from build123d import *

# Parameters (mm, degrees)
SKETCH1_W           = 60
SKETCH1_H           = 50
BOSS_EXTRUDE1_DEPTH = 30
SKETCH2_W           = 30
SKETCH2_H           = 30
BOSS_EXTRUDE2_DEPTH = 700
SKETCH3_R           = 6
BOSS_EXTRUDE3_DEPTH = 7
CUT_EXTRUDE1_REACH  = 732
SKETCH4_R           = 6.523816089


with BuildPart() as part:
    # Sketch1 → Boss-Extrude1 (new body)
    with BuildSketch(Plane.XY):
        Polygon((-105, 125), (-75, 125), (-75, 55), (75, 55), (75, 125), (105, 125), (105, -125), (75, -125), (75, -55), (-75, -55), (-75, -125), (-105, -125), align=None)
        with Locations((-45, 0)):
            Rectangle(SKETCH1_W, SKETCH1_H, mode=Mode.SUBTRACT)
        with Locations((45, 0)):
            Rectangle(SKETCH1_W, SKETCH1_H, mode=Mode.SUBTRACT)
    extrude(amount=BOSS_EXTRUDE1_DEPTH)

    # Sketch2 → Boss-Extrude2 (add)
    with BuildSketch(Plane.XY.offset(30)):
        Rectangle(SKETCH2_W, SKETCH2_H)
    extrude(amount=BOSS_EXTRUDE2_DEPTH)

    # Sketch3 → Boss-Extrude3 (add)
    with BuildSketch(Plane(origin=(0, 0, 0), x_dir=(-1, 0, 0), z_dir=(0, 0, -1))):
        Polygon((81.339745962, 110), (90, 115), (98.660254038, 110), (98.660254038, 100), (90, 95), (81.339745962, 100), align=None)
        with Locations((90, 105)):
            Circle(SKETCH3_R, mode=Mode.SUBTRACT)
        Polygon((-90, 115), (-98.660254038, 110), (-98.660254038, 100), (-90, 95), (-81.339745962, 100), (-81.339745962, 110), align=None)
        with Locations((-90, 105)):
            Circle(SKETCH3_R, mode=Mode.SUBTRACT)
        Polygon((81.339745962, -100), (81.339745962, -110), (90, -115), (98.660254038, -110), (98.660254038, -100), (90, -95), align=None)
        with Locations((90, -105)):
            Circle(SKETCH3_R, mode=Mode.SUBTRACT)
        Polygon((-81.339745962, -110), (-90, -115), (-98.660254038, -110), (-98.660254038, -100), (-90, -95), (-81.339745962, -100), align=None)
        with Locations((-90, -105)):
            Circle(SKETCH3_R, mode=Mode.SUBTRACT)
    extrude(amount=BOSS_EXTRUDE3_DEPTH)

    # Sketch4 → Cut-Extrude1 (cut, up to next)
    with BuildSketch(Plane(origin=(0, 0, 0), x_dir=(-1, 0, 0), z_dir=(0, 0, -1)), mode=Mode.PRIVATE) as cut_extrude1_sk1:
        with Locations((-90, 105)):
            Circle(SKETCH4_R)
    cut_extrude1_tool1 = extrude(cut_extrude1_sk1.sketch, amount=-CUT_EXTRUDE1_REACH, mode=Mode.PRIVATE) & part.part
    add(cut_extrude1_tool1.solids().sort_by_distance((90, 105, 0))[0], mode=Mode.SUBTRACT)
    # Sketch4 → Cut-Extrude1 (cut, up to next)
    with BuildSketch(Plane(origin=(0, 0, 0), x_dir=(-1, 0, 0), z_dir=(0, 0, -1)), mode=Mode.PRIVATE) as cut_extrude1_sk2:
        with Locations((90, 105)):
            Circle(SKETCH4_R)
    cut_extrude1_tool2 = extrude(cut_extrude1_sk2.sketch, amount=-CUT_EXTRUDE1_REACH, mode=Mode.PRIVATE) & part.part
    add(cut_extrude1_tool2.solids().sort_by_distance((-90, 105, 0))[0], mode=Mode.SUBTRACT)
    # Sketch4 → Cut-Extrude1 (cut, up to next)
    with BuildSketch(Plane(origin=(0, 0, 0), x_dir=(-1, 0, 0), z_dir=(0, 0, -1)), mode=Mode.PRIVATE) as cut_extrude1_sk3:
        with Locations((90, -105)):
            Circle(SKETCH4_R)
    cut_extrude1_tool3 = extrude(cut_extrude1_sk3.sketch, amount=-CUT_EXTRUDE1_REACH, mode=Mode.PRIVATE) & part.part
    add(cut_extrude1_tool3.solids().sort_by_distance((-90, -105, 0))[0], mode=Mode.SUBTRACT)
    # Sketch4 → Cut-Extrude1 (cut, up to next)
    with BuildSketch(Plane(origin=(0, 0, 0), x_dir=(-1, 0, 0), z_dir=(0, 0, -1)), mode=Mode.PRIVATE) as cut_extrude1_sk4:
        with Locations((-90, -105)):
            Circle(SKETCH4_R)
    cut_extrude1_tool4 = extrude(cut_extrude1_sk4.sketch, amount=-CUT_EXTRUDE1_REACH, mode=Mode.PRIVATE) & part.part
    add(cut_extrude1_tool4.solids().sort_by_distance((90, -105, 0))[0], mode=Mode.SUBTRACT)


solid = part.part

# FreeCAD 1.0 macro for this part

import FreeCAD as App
import Part
import Sketcher
from FreeCAD import Vector
Q = App.Units.Quantity

doc = App.newDocument("Part")
body = doc.addObject("PartDesign::Body", "Body")

sketch1 = body.newObject("Sketcher::SketchObject", "Sketch")
sketch1.AttachmentSupport = (doc.getObject("XY_Plane"), [""])
sketch1.MapMode = "FlatFace"
sketch1.addGeometry(Part.LineSegment(Vector(-75, 125, 0), Vector(-105, 125, 0)), False)
sketch1.addGeometry(Part.LineSegment(Vector(-105, 125, 0), Vector(-105, -125, 0)), False)
sketch1.addGeometry(Part.LineSegment(Vector(-105, -125, 0), Vector(-75, -125, 0)), False)
sketch1.addGeometry(Part.LineSegment(Vector(-75, -125, 0), Vector(-75, -55, 0)), False)
sketch1.addGeometry(Part.LineSegment(Vector(-75, -55, 0), Vector(75, -55, 0)), False)
sketch1.addGeometry(Part.LineSegment(Vector(75, -55, 0), Vector(75, -125, 0)), False)
sketch1.addGeometry(Part.LineSegment(Vector(75, -125, 0), Vector(105, -125, 0)), False)
sketch1.addGeometry(Part.LineSegment(Vector(105, -125, 0), Vector(105, 125, 0)), False)
sketch1.addGeometry(Part.LineSegment(Vector(105, 125, 0), Vector(75, 125, 0)), False)
sketch1.addGeometry(Part.LineSegment(Vector(75, 125, 0), Vector(75, 55, 0)), False)
sketch1.addGeometry(Part.LineSegment(Vector(75, 55, 0), Vector(-75, 55, 0)), False)
sketch1.addGeometry(Part.LineSegment(Vector(-75, 55, 0), Vector(-75, 125, 0)), False)
sketch1.addGeometry(Part.LineSegment(Vector(15, -25, 0), Vector(15, 25, 0)), False)
sketch1.addGeometry(Part.LineSegment(Vector(15, 25, 0), Vector(75, 25, 0)), False)
sketch1.addGeometry(Part.LineSegment(Vector(75, 25, 0), Vector(75, -25, 0)), False)
sketch1.addGeometry(Part.LineSegment(Vector(75, -25, 0), Vector(15, -25, 0)), False)
sketch1.addGeometry(Part.LineSegment(Vector(-75, -25, 0), Vector(-75, 25, 0)), False)
sketch1.addGeometry(Part.LineSegment(Vector(-75, 25, 0), Vector(-15, 25, 0)), False)
sketch1.addGeometry(Part.LineSegment(Vector(-15, 25, 0), Vector(-15, -25, 0)), False)
sketch1.addGeometry(Part.LineSegment(Vector(-15, -25, 0), Vector(-75, -25, 0)), False)
sketch1.addConstraint(Sketcher.Constraint("Coincident", 0, 2, 1, 1))
sketch1.addConstraint(Sketcher.Constraint("Coincident", 1, 2, 2, 1))
sketch1.addConstraint(Sketcher.Constraint("Coincident", 2, 2, 3, 1))
sketch1.addConstraint(Sketcher.Constraint("Coincident", 3, 2, 4, 1))
sketch1.addConstraint(Sketcher.Constraint("Coincident", 4, 2, 5, 1))
sketch1.addConstraint(Sketcher.Constraint("Coincident", 5, 2, 6, 1))
sketch1.addConstraint(Sketcher.Constraint("Coincident", 6, 2, 7, 1))
sketch1.addConstraint(Sketcher.Constraint("Coincident", 7, 2, 8, 1))
sketch1.addConstraint(Sketcher.Constraint("Coincident", 8, 2, 9, 1))
sketch1.addConstraint(Sketcher.Constraint("Coincident", 9, 2, 10, 1))
sketch1.addConstraint(Sketcher.Constraint("Coincident", 10, 2, 11, 1))
sketch1.addConstraint(Sketcher.Constraint("Coincident", 11, 2, 0, 1))
sketch1.addConstraint(Sketcher.Constraint("Coincident", 12, 2, 13, 1))
sketch1.addConstraint(Sketcher.Constraint("Coincident", 13, 2, 14, 1))
sketch1.addConstraint(Sketcher.Constraint("Coincident", 14, 2, 15, 1))
sketch1.addConstraint(Sketcher.Constraint("Coincident", 15, 2, 12, 1))
sketch1.addConstraint(Sketcher.Constraint("Coincident", 16, 2, 17, 1))
sketch1.addConstraint(Sketcher.Constraint("Coincident", 17, 2, 18, 1))
sketch1.addConstraint(Sketcher.Constraint("Coincident", 18, 2, 19, 1))
sketch1.addConstraint(Sketcher.Constraint("Coincident", 19, 2, 16, 1))
sketch1.addConstraint(Sketcher.Constraint("Horizontal", 0))
sketch1.addConstraint(Sketcher.Constraint("Vertical", 1))
sketch1.addConstraint(Sketcher.Constraint("Horizontal", 2))
sketch1.addConstraint(Sketcher.Constraint("Vertical", 3))
sketch1.addConstraint(Sketcher.Constraint("Horizontal", 4))
sketch1.addConstraint(Sketcher.Constraint("Vertical", 5))
sketch1.addConstraint(Sketcher.Constraint("Horizontal", 6))
sketch1.addConstraint(Sketcher.Constraint("Vertical", 7))
sketch1.addConstraint(Sketcher.Constraint("Horizontal", 8))
sketch1.addConstraint(Sketcher.Constraint("Vertical", 9))
sketch1.addConstraint(Sketcher.Constraint("Horizontal", 10))
sketch1.addConstraint(Sketcher.Constraint("Vertical", 11))
sketch1.addConstraint(Sketcher.Constraint("Vertical", 12))
sketch1.addConstraint(Sketcher.Constraint("Horizontal", 13))
sketch1.addConstraint(Sketcher.Constraint("Vertical", 14))
sketch1.addConstraint(Sketcher.Constraint("Horizontal", 15))
sketch1.addConstraint(Sketcher.Constraint("Vertical", 16))
sketch1.addConstraint(Sketcher.Constraint("Horizontal", 17))
sketch1.addConstraint(Sketcher.Constraint("Vertical", 18))
sketch1.addConstraint(Sketcher.Constraint("Horizontal", 19))
sketch1.addConstraint(Sketcher.Constraint("Symmetric", 0, 2, 6, 2, -1, 1))
sketch1.addConstraint(Sketcher.Constraint("Symmetric", 2, 2, 8, 2, -1, 1))
sketch1.addConstraint(Sketcher.Constraint("Symmetric", 4, 2, 10, 2, -1, 1))
sketch1.addConstraint(Sketcher.Constraint("Symmetric", 14, 2, 16, 2, -1, 1))
sketch1.addConstraint(Sketcher.Constraint("Symmetric", 12, 2, 18, 2, -1, 1))
sketch1.addConstraint(Sketcher.Constraint("Symmetric", 2, 2, 5, 2, -2))
sketch1.addConstraint(Sketcher.Constraint("Horizontal", 13, 2, 16, 2))
sketch1.addConstraint(Sketcher.Constraint("Vertical", 9, 2, 13, 2))
sketch1.addConstraint(Sketcher.Constraint("DistanceX", 0, 2, 0, 1, 30.0))
sketch1.addConstraint(Sketcher.Constraint("DistanceX", 4, 1, 4, 2, 150.0))
sketch1.addConstraint(Sketcher.Constraint("DistanceX", 13, 1, 13, 2, 60.0))
sketch1.addConstraint(Sketcher.Constraint("DistanceY", 1, 2, 1, 1, 250.0))
sketch1.addConstraint(Sketcher.Constraint("DistanceY", 3, 1, 3, 2, 70.0))
sketch1.addConstraint(Sketcher.Constraint("DistanceY", 12, 1, 12, 2, 50.0))
pad1 = body.newObject("PartDesign::Pad", "Pad")
pad1.Profile = sketch1
pad1.Length = 30

sketch2 = body.newObject("Sketcher::SketchObject", "Sketch001")
sketch2.AttachmentSupport = (doc.getObject("XY_Plane"), [""])
sketch2.MapMode = "FlatFace"
sketch2.AttachmentOffset = App.Placement(Vector(0, 0, 30), App.Rotation())
sketch2.addGeometry(Part.LineSegment(Vector(-15, 15, 0), Vector(-15, -15, 0)), False)
sketch2.addGeometry(Part.LineSegment(Vector(-15, -15, 0), Vector(15, -15, 0)), False)
sketch2.addGeometry(Part.LineSegment(Vector(15, -15, 0), Vector(15, 15, 0)), False)
sketch2.addGeometry(Part.LineSegment(Vector(15, 15, 0), Vector(-15, 15, 0)), False)
sketch2.addConstraint(Sketcher.Constraint("Coincident", 0, 2, 1, 1))
sketch2.addConstraint(Sketcher.Constraint("Coincident", 1, 2, 2, 1))
sketch2.addConstraint(Sketcher.Constraint("Coincident", 2, 2, 3, 1))
sketch2.addConstraint(Sketcher.Constraint("Coincident", 3, 2, 0, 1))
sketch2.addConstraint(Sketcher.Constraint("Vertical", 0))
sketch2.addConstraint(Sketcher.Constraint("Horizontal", 1))
sketch2.addConstraint(Sketcher.Constraint("Vertical", 2))
sketch2.addConstraint(Sketcher.Constraint("Horizontal", 3))
sketch2.addConstraint(Sketcher.Constraint("Symmetric", 0, 2, 2, 2, -1, 1))
sketch2.addConstraint(Sketcher.Constraint("Equal", 3, 0))
sketch2.addConstraint(Sketcher.Constraint("DistanceX", 1, 1, 1, 2, 30.0))
pad2 = body.newObject("PartDesign::Pad", "Pad001")
pad2.Profile = sketch2
pad2.Length = 700

sketch3 = body.newObject("Sketcher::SketchObject", "Sketch002")
sketch3.AttachmentSupport = (doc.getObject("XY_Plane"), [""])
sketch3.MapMode = "FlatFace"
sketch3.addGeometry(Part.LineSegment(Vector(-90, 115, 0), Vector(-81, 110, 0)), False)
sketch3.addGeometry(Part.LineSegment(Vector(-81, 110, 0), Vector(-81, 100, 0)), False)
sketch3.addGeometry(Part.LineSegment(Vector(-81, 100, 0), Vector(-90, 95, 0)), False)
sketch3.addGeometry(Part.LineSegment(Vector(-90, 95, 0), Vector(-99, 100, 0)), False)
sketch3.addGeometry(Part.LineSegment(Vector(-99, 100, 0), Vector(-99, 110, 0)), False)
sketch3.addGeometry(Part.LineSegment(Vector(-99, 110, 0), Vector(-90, 115, 0)), False)
sketch3.addGeometry(Part.Circle(Vector(-90, 105, 0), Vector(0, 0, 1), 6), False)
sketch3.addGeometry(Part.LineSegment(Vector(90, 115, 0), Vector(99, 110, 0)), False)
sketch3.addGeometry(Part.LineSegment(Vector(99, 110, 0), Vector(99, 100, 0)), False)
sketch3.addGeometry(Part.LineSegment(Vector(99, 100, 0), Vector(90, 95, 0)), False)
sketch3.addGeometry(Part.LineSegment(Vector(90, 95, 0), Vector(81, 100, 0)), False)
sketch3.addGeometry(Part.LineSegment(Vector(81, 100, 0), Vector(81, 110, 0)), False)
sketch3.addGeometry(Part.LineSegment(Vector(81, 110, 0), Vector(90, 115, 0)), False)
sketch3.addGeometry(Part.Circle(Vector(90, 105, 0), Vector(0, 0, 1), 6), False)
sketch3.addGeometry(Part.LineSegment(Vector(-81, -100, 0), Vector(-81, -110, 0)), False)
sketch3.addGeometry(Part.LineSegment(Vector(-81, -110, 0), Vector(-90, -115, 0)), False)
sketch3.addGeometry(Part.LineSegment(Vector(-90, -115, 0), Vector(-99, -110, 0)), False)
sketch3.addGeometry(Part.LineSegment(Vector(-99, -110, 0), Vector(-99, -100, 0)), False)
sketch3.addGeometry(Part.LineSegment(Vector(-99, -100, 0), Vector(-90, -95, 0)), False)
sketch3.addGeometry(Part.LineSegment(Vector(-90, -95, 0), Vector(-81, -100, 0)), False)
sketch3.addGeometry(Part.Circle(Vector(-90, -105, 0), Vector(0, 0, 1), 6), False)
sketch3.addGeometry(Part.LineSegment(Vector(90, -115, 0), Vector(81, -110, 0)), False)
sketch3.addGeometry(Part.LineSegment(Vector(81, -110, 0), Vector(81, -100, 0)), False)
sketch3.addGeometry(Part.LineSegment(Vector(81, -100, 0), Vector(90, -95, 0)), False)
sketch3.addGeometry(Part.LineSegment(Vector(90, -95, 0), Vector(99, -100, 0)), False)
sketch3.addGeometry(Part.LineSegment(Vector(99, -100, 0), Vector(99, -110, 0)), False)
sketch3.addGeometry(Part.LineSegment(Vector(99, -110, 0), Vector(90, -115, 0)), False)
sketch3.addGeometry(Part.Circle(Vector(90, -105, 0), Vector(0, 0, 1), 6), False)
sketch3.addConstraint(Sketcher.Constraint("Coincident", 0, 2, 1, 1))
sketch3.addConstraint(Sketcher.Constraint("Coincident", 1, 2, 2, 1))
sketch3.addConstraint(Sketcher.Constraint("Coincident", 2, 2, 3, 1))
sketch3.addConstraint(Sketcher.Constraint("Coincident", 3, 2, 4, 1))
sketch3.addConstraint(Sketcher.Constraint("Coincident", 4, 2, 5, 1))
sketch3.addConstraint(Sketcher.Constraint("Coincident", 5, 2, 0, 1))
sketch3.addConstraint(Sketcher.Constraint("Coincident", 7, 2, 8, 1))
sketch3.addConstraint(Sketcher.Constraint("Coincident", 8, 2, 9, 1))
sketch3.addConstraint(Sketcher.Constraint("Coincident", 9, 2, 10, 1))
sketch3.addConstraint(Sketcher.Constraint("Coincident", 10, 2, 11, 1))
sketch3.addConstraint(Sketcher.Constraint("Coincident", 11, 2, 12, 1))
sketch3.addConstraint(Sketcher.Constraint("Coincident", 12, 2, 7, 1))
sketch3.addConstraint(Sketcher.Constraint("Coincident", 14, 2, 15, 1))
sketch3.addConstraint(Sketcher.Constraint("Coincident", 15, 2, 16, 1))
sketch3.addConstraint(Sketcher.Constraint("Coincident", 16, 2, 17, 1))
sketch3.addConstraint(Sketcher.Constraint("Coincident", 17, 2, 18, 1))
sketch3.addConstraint(Sketcher.Constraint("Coincident", 18, 2, 19, 1))
sketch3.addConstraint(Sketcher.Constraint("Coincident", 19, 2, 14, 1))
sketch3.addConstraint(Sketcher.Constraint("Coincident", 21, 2, 22, 1))
sketch3.addConstraint(Sketcher.Constraint("Coincident", 22, 2, 23, 1))
sketch3.addConstraint(Sketcher.Constraint("Coincident", 23, 2, 24, 1))
sketch3.addConstraint(Sketcher.Constraint("Coincident", 24, 2, 25, 1))
sketch3.addConstraint(Sketcher.Constraint("Coincident", 25, 2, 26, 1))
sketch3.addConstraint(Sketcher.Constraint("Coincident", 26, 2, 21, 1))
sketch3.addConstraint(Sketcher.Constraint("Vertical", 1))
sketch3.addConstraint(Sketcher.Constraint("Vertical", 4))
sketch3.addConstraint(Sketcher.Constraint("Vertical", 8))
sketch3.addConstraint(Sketcher.Constraint("Vertical", 11))
sketch3.addConstraint(Sketcher.Constraint("Vertical", 14))
sketch3.addConstraint(Sketcher.Constraint("Vertical", 17))
sketch3.addConstraint(Sketcher.Constraint("Vertical", 22))
sketch3.addConstraint(Sketcher.Constraint("Vertical", 25))
sketch3.addConstraint(Sketcher.Constraint("Equal", 6, 13))
sketch3.addConstraint(Sketcher.Constraint("Equal", 13, 20))
sketch3.addConstraint(Sketcher.Constraint("Equal", 20, 27))
sketch3.addConstraint(Sketcher.Constraint("Symmetric", 13, 3, 20, 3, -1, 1))
sketch3.addConstraint(Sketcher.Constraint("Symmetric", 6, 3, 27, 3, -1, 1))
sketch3.addConstraint(Sketcher.Constraint("Symmetric", 11, 2, 14, 2, -1, 1))
sketch3.addConstraint(Sketcher.Constraint("Symmetric", 12, 2, 15, 2, -1, 1))
sketch3.addConstraint(Sketcher.Constraint("Symmetric", 7, 2, 16, 2, -1, 1))
sketch3.addConstraint(Sketcher.Constraint("Symmetric", 9, 2, 18, 2, -1, 1))
sketch3.addConstraint(Sketcher.Constraint("Symmetric", 0, 2, 21, 2, -1, 1))
sketch3.addConstraint(Sketcher.Constraint("Symmetric", 2, 2, 23, 2, -1, 1))
sketch3.addConstraint(Sketcher.Constraint("Symmetric", 3, 2, 24, 2, -1, 1))
sketch3.addConstraint(Sketcher.Constraint("Symmetric", 5, 2, 26, 2, -1, 1))
sketch3.addConstraint(Sketcher.Constraint("Symmetric", 6, 3, 13, 3, -2))
sketch3.addConstraint(Sketcher.Constraint("Symmetric", 4, 2, 7, 2, -2))
sketch3.addConstraint(Sketcher.Constraint("Symmetric", 2, 2, 9, 2, -2))
sketch3.addConstraint(Sketcher.Constraint("Symmetric", 1, 2, 10, 2, -2))
sketch3.addConstraint(Sketcher.Constraint("Symmetric", 5, 2, 12, 2, -2))
sketch3.addConstraint(Sketcher.Constraint("Parallel", 0, 3))
sketch3.addConstraint(Sketcher.Constraint("Parallel", 2, 5))
sketch3.addConstraint(Sketcher.Constraint("Parallel", 3, 7))
sketch3.addConstraint(Sketcher.Constraint("Parallel", 5, 9))
sketch3.addConstraint(Sketcher.Constraint("Parallel", 9, 12))
sketch3.addConstraint(Sketcher.Constraint("Parallel", 15, 18))
sketch3.addConstraint(Sketcher.Constraint("Parallel", 16, 19))
sketch3.addConstraint(Sketcher.Constraint("Parallel", 18, 23))
sketch3.addConstraint(Sketcher.Constraint("Parallel", 23, 26))
sketch3.addConstraint(Sketcher.Constraint("Horizontal", 1, 2, 3, 2))
sketch3.addConstraint(Sketcher.Constraint("Horizontal", 0, 2, 4, 2))
sketch3.addConstraint(Sketcher.Constraint("Vertical", 20, 3, 2, 2))
sketch3.addConstraint(Sketcher.Constraint("Diameter", 6, 12.0))
sketch3.addConstraint(Sketcher.Constraint("DistanceY", 1, 2, 1, 1, 10.0))
sketch3.addConstraint(Sketcher.Constraint("Angle", 0, Q("-30 deg")))
sketch3.addConstraint(Sketcher.Constraint("Distance", 0, 10.0))
sketch3.addConstraint(Sketcher.Constraint("DistanceX", 6, 3, -1, 1, 90.0))
sketch3.addConstraint(Sketcher.Constraint("DistanceY", -1, 1, 6, 3, 105.0))
sketch3.addConstraint(Sketcher.Constraint("DistanceY", -1, 1, 0, 2, 110.0))
pad3 = body.newObject("PartDesign::Pad", "Pad002")
pad3.Profile = sketch3
pad3.Length = 7
pad3.Reversed = True

sketch4 = body.newObject("Sketcher::SketchObject", "Sketch003")
sketch4.AttachmentSupport = (doc.getObject("XY_Plane"), [""])
sketch4.MapMode = "FlatFace"
sketch4.addGeometry(Part.Circle(Vector(90, 105, 0), Vector(0, 0, 1), 7), False)
sketch4.addConstraint(Sketcher.Constraint("DistanceX", -1, 1, 0, 3, 90.0))
sketch4.addConstraint(Sketcher.Constraint("DistanceY", -1, 1, 0, 3, 105.0))
sketch4.addConstraint(Sketcher.Constraint("Diameter", 0, 13.047632))
pocket1 = body.newObject("PartDesign::Pocket", "Pocket")
pocket1.Profile = sketch4
pocket1.Type = "UpToFirst"
pocket1.Reversed = True

sketch5 = body.newObject("Sketcher::SketchObject", "Sketch004")
sketch5.AttachmentSupport = (doc.getObject("XY_Plane"), [""])
sketch5.MapMode = "FlatFace"
sketch5.addGeometry(Part.Circle(Vector(-90, 105, 0), Vector(0, 0, 1), 7), False)
sketch5.addConstraint(Sketcher.Constraint("DistanceX", 0, 3, -1, 1, 90.0))
sketch5.addConstraint(Sketcher.Constraint("DistanceY", -1, 1, 0, 3, 105.0))
sketch5.addConstraint(Sketcher.Constraint("Diameter", 0, 13.047632))
pocket2 = body.newObject("PartDesign::Pocket", "Pocket001")
pocket2.Profile = sketch5
pocket2.Type = "UpToFirst"
pocket2.Reversed = True

sketch6 = body.newObject("Sketcher::SketchObject", "Sketch005")
sketch6.AttachmentSupport = (doc.getObject("XY_Plane"), [""])
sketch6.MapMode = "FlatFace"
sketch6.addGeometry(Part.Circle(Vector(-90, -105, 0), Vector(0, 0, 1), 7), False)
sketch6.addConstraint(Sketcher.Constraint("DistanceX", 0, 3, -1, 1, 90.0))
sketch6.addConstraint(Sketcher.Constraint("DistanceY", 0, 3, -1, 1, 105.0))
sketch6.addConstraint(Sketcher.Constraint("Diameter", 0, 13.047632))
pocket3 = body.newObject("PartDesign::Pocket", "Pocket002")
pocket3.Profile = sketch6
pocket3.Type = "UpToFirst"
pocket3.Reversed = True

sketch7 = body.newObject("Sketcher::SketchObject", "Sketch006")
sketch7.AttachmentSupport = (doc.getObject("XY_Plane"), [""])
sketch7.MapMode = "FlatFace"
sketch7.addGeometry(Part.Circle(Vector(90, -105, 0), Vector(0, 0, 1), 7), False)
sketch7.addConstraint(Sketcher.Constraint("DistanceX", -1, 1, 0, 3, 90.0))
sketch7.addConstraint(Sketcher.Constraint("DistanceY", 0, 3, -1, 1, 105.0))
sketch7.addConstraint(Sketcher.Constraint("Diameter", 0, 13.047632))
pocket4 = body.newObject("PartDesign::Pocket", "Pocket003")
pocket4.Profile = sketch7
pocket4.Type = "UpToFirst"
pocket4.Reversed = True

doc.recompute()
